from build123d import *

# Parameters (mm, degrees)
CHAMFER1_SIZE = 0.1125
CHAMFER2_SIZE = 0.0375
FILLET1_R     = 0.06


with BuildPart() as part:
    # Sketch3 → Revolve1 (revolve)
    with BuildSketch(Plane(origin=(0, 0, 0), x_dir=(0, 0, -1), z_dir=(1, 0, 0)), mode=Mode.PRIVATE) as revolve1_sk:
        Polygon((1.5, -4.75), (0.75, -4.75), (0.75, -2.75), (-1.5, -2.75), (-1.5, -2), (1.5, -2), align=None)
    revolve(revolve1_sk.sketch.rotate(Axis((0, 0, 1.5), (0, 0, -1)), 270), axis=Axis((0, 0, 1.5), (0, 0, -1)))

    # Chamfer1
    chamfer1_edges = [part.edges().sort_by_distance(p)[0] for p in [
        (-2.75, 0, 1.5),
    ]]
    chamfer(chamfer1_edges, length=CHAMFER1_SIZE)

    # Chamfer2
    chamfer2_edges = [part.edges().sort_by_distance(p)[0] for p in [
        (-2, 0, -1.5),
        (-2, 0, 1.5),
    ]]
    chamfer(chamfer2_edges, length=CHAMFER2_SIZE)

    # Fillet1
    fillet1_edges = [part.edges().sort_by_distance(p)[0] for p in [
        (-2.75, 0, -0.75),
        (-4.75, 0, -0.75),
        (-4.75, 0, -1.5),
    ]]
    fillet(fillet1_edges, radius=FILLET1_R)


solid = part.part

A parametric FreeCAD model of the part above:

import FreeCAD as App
import Part
import Sketcher


def edges_at(feature, points):
    """Names of the edges that pass closest to the given points."""
    edges = feature.Shape.Edges
    near = lambda p: min(range(len(edges)), key=lambda i: edges[i].distToShape(Part.Vertex(*p))[0])
    return sorted({f"Edge{near(p) + 1}" for p in points})

doc = App.newDocument("Part")
body = doc.addObject("PartDesign::Body", "Body")

# Sketch on YZ plane
sketch1 = body.newObject("Sketcher::SketchObject", "Sketch")
sketch1.AttachmentSupport = (doc.getObject("YZ_Plane"), [""])
sketch1.MapMode = "FlatFace"
sketch1.addGeometry([
    Part.LineSegment(App.Vector(-4.8, -0.8, 0), App.Vector(-4.8, -1.5, 0)),  # 0
    Part.LineSegment(App.Vector(-4.8, -1.5, 0), App.Vector(-2, -1.5, 0)),  # 1
    Part.LineSegment(App.Vector(-2, -1.5, 0), App.Vector(-2, 1.5, 0)),  # 2
    Part.LineSegment(App.Vector(-2, 1.5, 0), App.Vector(-2.8, 1.5, 0)),  # 3
    Part.LineSegment(App.Vector(-2.8, 1.5, 0), App.Vector(-2.8, -0.8, 0)),  # 4
    Part.LineSegment(App.Vector(-2.8, -0.8, 0), App.Vector(-4.8, -0.8, 0)),  # 5
], False)
sketch1.addConstraint([
    Sketcher.Constraint("Coincident", 0, 2, 1, 1),
    Sketcher.Constraint("Coincident", 1, 2, 2, 1),
    Sketcher.Constraint("Coincident", 2, 2, 3, 1),
    Sketcher.Constraint("Coincident", 3, 2, 4, 1),
    Sketcher.Constraint("Coincident", 4, 2, 5, 1),
    Sketcher.Constraint("Coincident", 5, 2, 0, 1),
    Sketcher.Constraint("Vertical", 0),
    Sketcher.Constraint("Horizontal", 1),
    Sketcher.Constraint("Vertical", 2),
    Sketcher.Constraint("Horizontal", 3),
    Sketcher.Constraint("Vertical", 4),
    Sketcher.Constraint("Horizontal", 5),
    Sketcher.Constraint("Equal", 3, 0),
    Sketcher.Constraint("DistanceX", 5, 2, 5, 1, 2.0),
    Sketcher.Constraint("DistanceY", 2, 1, 2, 2, 3.0),
    Sketcher.Constraint("DistanceX", 1, 2, -1, 1, 2.0),
    Sketcher.Constraint("DistanceX", 1, 1, 1, 2, 2.75),
    Sketcher.Constraint("DistanceY", 0, 2, -1, 1, 1.5),
])
revolution = body.newObject("PartDesign::Revolution", "Revolution")
revolution.Profile = sketch1
revolution.ReferenceAxis = (sketch1, ["V_Axis"])
revolution.Angle = 360
doc.recompute()

chamfer = body.newObject("PartDesign::Chamfer", "Chamfer")
chamfer.Base = (revolution, edges_at(revolution, [(-2.75, 0, 1.5)]))
chamfer.Size = 0.1125
doc.recompute()

chamfer2 = body.newObject("PartDesign::Chamfer", "Chamfer001")
chamfer2.Base = (chamfer, edges_at(chamfer, [(-2, 0, -1.5), (-2, 0, 1.5)]))
chamfer2.Size = 0.0375
doc.recompute()

fillet = body.newObject("PartDesign::Fillet", "Fillet")
fillet.Base = (chamfer2, edges_at(chamfer2, [(-2.75, 0, -0.75), (-4.75, 0, -0.75), (-4.75, 0, -1.5)]))
fillet.Radius = 0.06

doc.recompute()
